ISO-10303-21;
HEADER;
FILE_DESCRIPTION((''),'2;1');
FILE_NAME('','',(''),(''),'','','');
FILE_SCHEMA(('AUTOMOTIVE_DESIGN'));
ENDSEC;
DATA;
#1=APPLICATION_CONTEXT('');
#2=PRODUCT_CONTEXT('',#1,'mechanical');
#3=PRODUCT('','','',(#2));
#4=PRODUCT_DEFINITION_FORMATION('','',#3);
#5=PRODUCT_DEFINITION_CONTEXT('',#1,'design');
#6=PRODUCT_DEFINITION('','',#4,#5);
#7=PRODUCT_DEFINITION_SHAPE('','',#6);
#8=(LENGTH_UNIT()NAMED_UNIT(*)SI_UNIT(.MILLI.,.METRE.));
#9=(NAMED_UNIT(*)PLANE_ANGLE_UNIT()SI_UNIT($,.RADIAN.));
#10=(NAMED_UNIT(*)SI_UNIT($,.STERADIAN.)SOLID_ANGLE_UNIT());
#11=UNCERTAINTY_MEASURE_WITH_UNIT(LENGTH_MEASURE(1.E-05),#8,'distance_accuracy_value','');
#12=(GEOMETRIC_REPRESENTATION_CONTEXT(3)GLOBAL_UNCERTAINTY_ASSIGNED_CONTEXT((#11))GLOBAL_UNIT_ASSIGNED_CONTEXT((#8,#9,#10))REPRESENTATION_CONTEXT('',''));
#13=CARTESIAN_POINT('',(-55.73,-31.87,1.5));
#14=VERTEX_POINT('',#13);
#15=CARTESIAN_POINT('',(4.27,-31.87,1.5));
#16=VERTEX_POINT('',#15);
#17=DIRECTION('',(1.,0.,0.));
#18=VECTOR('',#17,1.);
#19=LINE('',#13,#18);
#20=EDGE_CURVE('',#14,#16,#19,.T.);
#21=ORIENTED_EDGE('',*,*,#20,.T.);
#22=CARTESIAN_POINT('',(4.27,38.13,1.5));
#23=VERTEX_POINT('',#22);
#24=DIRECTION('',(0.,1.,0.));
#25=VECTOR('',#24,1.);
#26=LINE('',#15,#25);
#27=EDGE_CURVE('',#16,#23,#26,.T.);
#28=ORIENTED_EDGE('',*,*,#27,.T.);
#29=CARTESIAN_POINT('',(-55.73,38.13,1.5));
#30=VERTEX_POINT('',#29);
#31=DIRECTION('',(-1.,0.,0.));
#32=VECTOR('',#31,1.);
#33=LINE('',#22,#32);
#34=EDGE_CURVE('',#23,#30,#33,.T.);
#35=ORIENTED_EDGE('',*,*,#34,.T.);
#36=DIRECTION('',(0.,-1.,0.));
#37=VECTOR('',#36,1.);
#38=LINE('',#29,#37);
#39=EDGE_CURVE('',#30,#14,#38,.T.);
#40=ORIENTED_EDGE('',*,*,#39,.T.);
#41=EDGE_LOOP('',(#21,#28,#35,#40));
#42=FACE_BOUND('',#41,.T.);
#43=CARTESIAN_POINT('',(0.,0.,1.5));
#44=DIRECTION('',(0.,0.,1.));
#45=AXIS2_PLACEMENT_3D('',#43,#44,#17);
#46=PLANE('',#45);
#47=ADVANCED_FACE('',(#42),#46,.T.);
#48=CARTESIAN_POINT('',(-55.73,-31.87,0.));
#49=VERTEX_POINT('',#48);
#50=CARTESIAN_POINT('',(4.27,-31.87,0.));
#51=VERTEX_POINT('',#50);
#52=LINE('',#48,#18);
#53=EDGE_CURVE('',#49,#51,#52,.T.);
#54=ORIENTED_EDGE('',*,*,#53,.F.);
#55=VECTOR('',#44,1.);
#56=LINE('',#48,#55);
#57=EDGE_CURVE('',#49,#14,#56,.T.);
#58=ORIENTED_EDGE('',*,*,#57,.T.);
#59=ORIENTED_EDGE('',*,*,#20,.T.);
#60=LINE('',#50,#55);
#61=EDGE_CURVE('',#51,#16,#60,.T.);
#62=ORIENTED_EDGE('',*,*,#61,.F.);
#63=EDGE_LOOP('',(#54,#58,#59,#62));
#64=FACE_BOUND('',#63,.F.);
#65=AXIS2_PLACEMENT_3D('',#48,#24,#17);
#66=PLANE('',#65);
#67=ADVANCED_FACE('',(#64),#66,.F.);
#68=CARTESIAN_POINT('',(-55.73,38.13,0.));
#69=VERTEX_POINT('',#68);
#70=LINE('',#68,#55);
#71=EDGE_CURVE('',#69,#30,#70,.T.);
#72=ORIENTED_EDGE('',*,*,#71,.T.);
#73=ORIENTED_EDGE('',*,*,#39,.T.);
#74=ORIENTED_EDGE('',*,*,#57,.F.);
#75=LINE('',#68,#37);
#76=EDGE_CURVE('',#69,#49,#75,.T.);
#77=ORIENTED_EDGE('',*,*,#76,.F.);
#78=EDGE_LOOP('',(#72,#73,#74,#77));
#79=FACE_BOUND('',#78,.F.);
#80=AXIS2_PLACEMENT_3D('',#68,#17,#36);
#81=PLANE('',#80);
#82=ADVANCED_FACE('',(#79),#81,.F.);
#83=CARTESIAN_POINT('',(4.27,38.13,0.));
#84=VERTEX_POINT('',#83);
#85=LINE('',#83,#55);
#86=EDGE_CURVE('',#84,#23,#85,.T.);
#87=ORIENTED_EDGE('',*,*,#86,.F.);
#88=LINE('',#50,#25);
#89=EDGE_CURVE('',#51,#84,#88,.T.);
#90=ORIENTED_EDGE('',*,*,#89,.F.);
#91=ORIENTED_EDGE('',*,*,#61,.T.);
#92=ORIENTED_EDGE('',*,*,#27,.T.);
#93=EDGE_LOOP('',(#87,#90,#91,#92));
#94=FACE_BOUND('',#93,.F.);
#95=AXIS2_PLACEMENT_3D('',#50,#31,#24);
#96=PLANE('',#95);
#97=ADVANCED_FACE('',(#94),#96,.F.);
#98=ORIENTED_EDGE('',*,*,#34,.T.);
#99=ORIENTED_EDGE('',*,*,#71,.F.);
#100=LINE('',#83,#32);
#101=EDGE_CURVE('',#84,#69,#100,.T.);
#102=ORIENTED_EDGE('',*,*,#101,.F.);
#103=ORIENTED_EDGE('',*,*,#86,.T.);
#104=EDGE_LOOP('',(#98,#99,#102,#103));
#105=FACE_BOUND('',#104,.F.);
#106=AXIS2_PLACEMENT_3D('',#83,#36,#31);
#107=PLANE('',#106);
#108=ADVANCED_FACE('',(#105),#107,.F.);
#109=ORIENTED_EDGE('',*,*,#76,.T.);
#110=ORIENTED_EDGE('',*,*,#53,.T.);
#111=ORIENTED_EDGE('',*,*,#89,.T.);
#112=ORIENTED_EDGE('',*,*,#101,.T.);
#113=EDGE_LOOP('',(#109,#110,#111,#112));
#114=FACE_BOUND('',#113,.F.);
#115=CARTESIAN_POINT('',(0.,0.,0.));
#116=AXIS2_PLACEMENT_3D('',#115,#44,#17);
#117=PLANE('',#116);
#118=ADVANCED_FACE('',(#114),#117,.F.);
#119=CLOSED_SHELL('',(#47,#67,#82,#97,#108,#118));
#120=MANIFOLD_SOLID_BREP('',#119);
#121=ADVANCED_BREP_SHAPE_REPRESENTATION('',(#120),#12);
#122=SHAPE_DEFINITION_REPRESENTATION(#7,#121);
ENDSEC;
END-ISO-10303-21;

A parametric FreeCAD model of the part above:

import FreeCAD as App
import Part
import Sketcher

V = App.Vector


def add_polygon(sketch, points):
    """Adds a closed chain of lines whose ends are joined by coincident constraints."""
    first, n = sketch.GeometryCount, len(points)
    for a, b in zip(points, points[1:] + points[:1]):
        sketch.addGeometry(Part.LineSegment(App.Vector(*a, 0), App.Vector(*b, 0)), False)
    for i in range(n):
        sketch.addConstraint(Sketcher.Constraint("Coincident", first + i, 2, first + (i + 1) % n, 1))

doc = App.newDocument("Part")
params = doc.addObject("Spreadsheet::Sheet", "Params")
for row, (alias, value) in enumerate([
    ("sketch1_width", "60 mm"),
    ("sketch1_height", "70 mm"),
    ("pad1_length", "1.5 mm"),
], start=1):
    params.set(f"A{row}", alias)
    params.set(f"B{row}", "=" + value)
    params.setAlias(f"B{row}", alias)

body = doc.addObject("PartDesign::Body", "Body")

# Sketch on XY plane
sketch1 = doc.addObject("Sketcher::SketchObject", "Sketch")
body.addObject(sketch1)
sketch1.AttachmentSupport = (doc.XY_Plane, [""])
sketch1.MapMode = "FlatFace"
add_polygon(sketch1, [(4.27, -31.87), (4.27, 38.13), (-55.73, 38.13), (-55.73, -31.87)])  # lines 0-3
sketch1.addConstraint([
    Sketcher.Constraint("Vertical", 0),
    Sketcher.Constraint("Horizontal", 1),
    Sketcher.Constraint("Vertical", 2),
    Sketcher.Constraint("Horizontal", 3),
    Sketcher.Constraint("DistanceX", 1, 2, 1, 1, 60.0),
    Sketcher.Constraint("DistanceY", 0, 1, 0, 2, 70.0),
    Sketcher.Constraint("DistanceX", -1, 1, 0, 2, 4.27),
    Sketcher.Constraint("DistanceY", -1, 1, 0, 2, 38.13),
])
sketch1.setExpression("Constraints[8]", "Params.sketch1_width")
sketch1.setExpression("Constraints[9]", "Params.sketch1_height")
pad1 = doc.addObject("PartDesign::Pad", "Pad")
body.addObject(pad1)
pad1.Profile = sketch1
pad1.setExpression("Length", "Params.pad1_length")

doc.recompute()
